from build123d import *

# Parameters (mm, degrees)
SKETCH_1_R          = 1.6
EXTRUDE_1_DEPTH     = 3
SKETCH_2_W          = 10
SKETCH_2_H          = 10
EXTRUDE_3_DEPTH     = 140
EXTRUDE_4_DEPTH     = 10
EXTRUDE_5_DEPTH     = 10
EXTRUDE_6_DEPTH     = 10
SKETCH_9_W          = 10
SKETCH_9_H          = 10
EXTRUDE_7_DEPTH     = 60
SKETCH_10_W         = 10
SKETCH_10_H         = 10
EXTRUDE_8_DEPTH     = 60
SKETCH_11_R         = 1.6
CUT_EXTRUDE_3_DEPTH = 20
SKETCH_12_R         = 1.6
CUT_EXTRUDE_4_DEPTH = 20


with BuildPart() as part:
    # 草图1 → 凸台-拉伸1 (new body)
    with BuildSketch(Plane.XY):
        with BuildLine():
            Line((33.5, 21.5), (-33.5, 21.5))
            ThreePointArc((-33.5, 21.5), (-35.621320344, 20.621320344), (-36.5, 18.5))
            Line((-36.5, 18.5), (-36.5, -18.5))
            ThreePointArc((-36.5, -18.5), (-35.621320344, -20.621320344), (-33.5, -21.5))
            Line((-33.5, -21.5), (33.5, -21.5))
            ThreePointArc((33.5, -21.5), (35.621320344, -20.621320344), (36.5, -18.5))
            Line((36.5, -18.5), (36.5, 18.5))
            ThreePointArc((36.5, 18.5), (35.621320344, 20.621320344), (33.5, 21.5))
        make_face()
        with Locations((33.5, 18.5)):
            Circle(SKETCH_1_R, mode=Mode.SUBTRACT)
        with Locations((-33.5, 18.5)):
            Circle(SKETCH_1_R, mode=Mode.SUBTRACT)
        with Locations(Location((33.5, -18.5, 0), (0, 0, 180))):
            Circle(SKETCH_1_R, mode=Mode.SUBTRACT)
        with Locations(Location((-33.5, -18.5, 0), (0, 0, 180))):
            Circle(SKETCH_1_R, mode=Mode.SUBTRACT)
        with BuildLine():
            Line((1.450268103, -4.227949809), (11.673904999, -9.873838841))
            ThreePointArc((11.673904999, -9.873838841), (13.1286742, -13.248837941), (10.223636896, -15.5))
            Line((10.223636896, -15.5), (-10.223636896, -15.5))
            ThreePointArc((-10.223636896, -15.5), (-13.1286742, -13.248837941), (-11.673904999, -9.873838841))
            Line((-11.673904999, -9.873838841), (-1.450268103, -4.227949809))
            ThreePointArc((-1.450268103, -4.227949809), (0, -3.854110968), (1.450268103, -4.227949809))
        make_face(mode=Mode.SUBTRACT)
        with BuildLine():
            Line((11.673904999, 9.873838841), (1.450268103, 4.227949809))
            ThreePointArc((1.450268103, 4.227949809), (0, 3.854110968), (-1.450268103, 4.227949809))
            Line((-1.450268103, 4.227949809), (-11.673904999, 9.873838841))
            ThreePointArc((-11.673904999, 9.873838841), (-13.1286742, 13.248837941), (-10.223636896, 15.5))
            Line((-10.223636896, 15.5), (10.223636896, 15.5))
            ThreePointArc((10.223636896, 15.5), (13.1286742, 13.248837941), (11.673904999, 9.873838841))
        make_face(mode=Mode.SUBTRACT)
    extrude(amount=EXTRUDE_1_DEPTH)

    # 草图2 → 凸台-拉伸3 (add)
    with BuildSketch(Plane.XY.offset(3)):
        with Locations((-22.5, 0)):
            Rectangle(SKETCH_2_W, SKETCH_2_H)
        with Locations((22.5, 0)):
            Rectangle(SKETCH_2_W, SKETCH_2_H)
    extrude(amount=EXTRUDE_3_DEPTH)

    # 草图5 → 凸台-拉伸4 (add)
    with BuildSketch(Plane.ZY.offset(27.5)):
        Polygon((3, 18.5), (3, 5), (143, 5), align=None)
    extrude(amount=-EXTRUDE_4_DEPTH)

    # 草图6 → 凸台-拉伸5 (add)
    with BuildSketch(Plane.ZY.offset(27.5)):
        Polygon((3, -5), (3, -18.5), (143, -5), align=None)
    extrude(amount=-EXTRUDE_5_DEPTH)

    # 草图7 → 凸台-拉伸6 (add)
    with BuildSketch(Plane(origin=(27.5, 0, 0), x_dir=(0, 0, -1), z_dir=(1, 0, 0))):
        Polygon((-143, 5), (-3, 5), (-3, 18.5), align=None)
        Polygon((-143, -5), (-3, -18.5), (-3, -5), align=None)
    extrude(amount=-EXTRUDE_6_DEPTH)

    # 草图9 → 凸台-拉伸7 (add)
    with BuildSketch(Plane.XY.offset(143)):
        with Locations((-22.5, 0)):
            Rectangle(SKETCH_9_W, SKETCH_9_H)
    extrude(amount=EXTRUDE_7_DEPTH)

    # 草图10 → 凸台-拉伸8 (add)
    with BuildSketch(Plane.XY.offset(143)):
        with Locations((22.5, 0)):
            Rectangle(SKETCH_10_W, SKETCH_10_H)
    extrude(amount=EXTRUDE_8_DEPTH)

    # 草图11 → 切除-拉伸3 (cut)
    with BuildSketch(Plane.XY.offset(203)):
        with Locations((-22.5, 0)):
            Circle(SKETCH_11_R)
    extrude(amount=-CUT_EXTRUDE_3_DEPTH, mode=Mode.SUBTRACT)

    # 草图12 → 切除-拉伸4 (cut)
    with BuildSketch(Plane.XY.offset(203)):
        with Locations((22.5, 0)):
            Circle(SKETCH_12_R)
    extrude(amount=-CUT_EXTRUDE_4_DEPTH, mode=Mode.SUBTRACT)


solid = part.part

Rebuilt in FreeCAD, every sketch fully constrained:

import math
import FreeCAD as App
import Part
import Sketcher

V = App.Vector
Q = App.Units.Quantity

doc = App.newDocument("Part")
body = doc.addObject("PartDesign::Body", "Body")

sketch1 = body.newObject("Sketcher::SketchObject", "Sketch")
sketch1.AttachmentSupport = (doc.getObject("XY_Plane"), [""])
sketch1.MapMode = "FlatFace"
sketch1.addGeometry([
    Part.LineSegment(V(33.5, 21.5, 0), V(-33.5, 21.5, 0)),
    Part.ArcOfCircle(Part.Circle(V(-33.5, 18.5, 0), V(0, 0, 1), 3), math.radians(90), math.radians(180)),
    Part.LineSegment(V(-36.5, 18.5, 0), V(-36.5, -18.5, 0)),
    Part.ArcOfCircle(Part.Circle(V(-33.5, -18.5, 0), V(0, 0, 1), 3), math.radians(180), math.radians(270)),
    Part.LineSegment(V(-33.5, -21.5, 0), V(33.5, -21.5, 0)),
    Part.ArcOfCircle(Part.Circle(V(33.5, -18.5, 0), V(0, 0, 1), 3), math.radians(-90), math.radians(0)),
    Part.LineSegment(V(36.5, -18.5, 0), V(36.5, 18.5, 0)),
    Part.ArcOfCircle(Part.Circle(V(33.5, 18.5, 0), V(0, 0, 1), 3), math.radians(0), math.radians(90)),
    Part.Circle(V(-33.5, -18.5, 0), V(0, 0, 1), 1.6),
    Part.Circle(V(33.5, -18.5, 0), V(0, 0, 1), 1.6),
    Part.ArcOfCircle(Part.Circle(V(0, -6.9, 0), V(0, 0, 1), 3), math.radians(61), math.radians(119)),
    Part.LineSegment(V(1.5, -4.2, 0), V(11.7, -9.9, 0)),
    Part.ArcOfCircle(Part.Circle(V(10.2, -12.5, 0), V(0, 0, 1), 3), math.radians(-90), math.radians(61)),
    Part.LineSegment(V(10.2, -15.5, 0), V(-10.2, -15.5, 0)),
    Part.ArcOfCircle(Part.Circle(V(-10.2, -12.5, 0), V(0, 0, 1), 3), math.radians(119), math.radians(270)),
    Part.LineSegment(V(-11.7, -9.9, 0), V(-1.5, -4.2, 0)),
    Part.Circle(V(-33.5, 18.5, 0), V(0, 0, 1), 1.6),
    Part.ArcOfCircle(Part.Circle(V(10.2, 12.5, 0), V(0, 0, 1), 3), math.radians(-61), math.radians(90)),
    Part.LineSegment(V(11.7, 9.9, 0), V(1.5, 4.2, 0)),
    Part.ArcOfCircle(Part.Circle(V(0, 6.9, 0), V(0, 0, 1), 3), math.radians(-119), math.radians(-61)),
    Part.LineSegment(V(-1.5, 4.2, 0), V(-11.7, 9.9, 0)),
    Part.ArcOfCircle(Part.Circle(V(-10.2, 12.5, 0), V(0, 0, 1), 3), math.radians(90), math.radians(241)),
    Part.LineSegment(V(-10.2, 15.5, 0), V(10.2, 15.5, 0)),
    Part.Circle(V(33.5, 18.5, 0), V(0, 0, 1), 1.6),
], False)
sketch1.addConstraint([
    Sketcher.Constraint("Tangent", 0, 2, 1, 1),
    Sketcher.Constraint("Tangent", 1, 2, 2, 1),
    Sketcher.Constraint("Tangent", 2, 2, 3, 1),
    Sketcher.Constraint("Tangent", 3, 2, 4, 1),
    Sketcher.Constraint("Tangent", 4, 2, 5, 1),
    Sketcher.Constraint("Tangent", 5, 2, 6, 1),
    Sketcher.Constraint("Tangent", 6, 2, 7, 1),
    Sketcher.Constraint("Tangent", 7, 2, 0, 1),
    Sketcher.Constraint("Tangent", 10, 1, 11, 1),
    Sketcher.Constraint("Tangent", 11, 2, 12, 2),
    Sketcher.Constraint("Tangent", 12, 1, 13, 1),
    Sketcher.Constraint("Tangent", 13, 2, 14, 2),
    Sketcher.Constraint("Tangent", 14, 1, 15, 1),
    Sketcher.Constraint("Tangent", 15, 2, 10, 2),
    Sketcher.Constraint("Tangent", 17, 1, 18, 1),
    Sketcher.Constraint("Tangent", 18, 2, 19, 2),
    Sketcher.Constraint("Tangent", 19, 1, 20, 1),
    Sketcher.Constraint("Tangent", 20, 2, 21, 2),
    Sketcher.Constraint("Tangent", 21, 1, 22, 1),
    Sketcher.Constraint("Tangent", 22, 2, 17, 2),
    Sketcher.Constraint("Horizontal", 0),
    Sketcher.Constraint("Vertical", 2),
    Sketcher.Constraint("Horizontal", 4),
    Sketcher.Constraint("Vertical", 6),
    Sketcher.Constraint("Horizontal", 13),
    Sketcher.Constraint("Horizontal", 22),
    Sketcher.Constraint("Coincident", 8, 3, 3, 3),
    Sketcher.Constraint("Coincident", 9, 3, 5, 3),
    Sketcher.Constraint("Coincident", 16, 3, 1, 3),
    Sketcher.Constraint("Coincident", 23, 3, 7, 3),
    Sketcher.Constraint("Equal", 1, 3),
    Sketcher.Constraint("Equal", 3, 5),
    Sketcher.Constraint("Equal", 5, 7),
    Sketcher.Constraint("Equal", 8, 9),
    Sketcher.Constraint("Equal", 7, 10),
    Sketcher.Constraint("Equal", 10, 12),
    Sketcher.Constraint("Equal", 12, 14),
    Sketcher.Constraint("Equal", 9, 16),
    Sketcher.Constraint("Equal", 14, 17),
    Sketcher.Constraint("Equal", 17, 19),
    Sketcher.Constraint("Equal", 19, 21),
    Sketcher.Constraint("Equal", 16, 23),
    Sketcher.Constraint("Symmetric", 1, 3, 5, 3, -1, 1),
    Sketcher.Constraint("Symmetric", 14, 3, 17, 3, -1, 1),
    Sketcher.Constraint("Symmetric", 10, 3, 19, 3, -1, 1),
    Sketcher.Constraint("Symmetric", 11, 2, 14, 1, -2),
    Sketcher.Constraint("Parallel", 11, 20),
    Sketcher.Constraint("Radius", 1, Q("3 mm")),
    Sketcher.Constraint("Diameter", 8, Q("3.2 mm")),
    Sketcher.Constraint("DistanceX", 0, 2, 0, 1, Q("67 mm")),
    Sketcher.Constraint("DistanceY", 2, 2, 2, 1, Q("37 mm")),
    Sketcher.Constraint("DistanceY", 9, 3, 12, 3, Q("6 mm")),
    Sketcher.Constraint("DistanceY", 10, 1, 18, 2, Q("8.4559 mm")),
    Sketcher.Constraint("Distance", 11, Q("11.67899 mm")),
])
pad1 = body.newObject("PartDesign::Pad", "Pad")
pad1.Profile = sketch1
pad1.Length = 3

sketch2 = body.newObject("Sketcher::SketchObject", "Sketch001")
sketch2.AttachmentSupport = (doc.getObject("XY_Plane"), [""])
sketch2.MapMode = "FlatFace"
sketch2.AttachmentOffset = App.Placement(V(0, 0, 3), App.Rotation())
sketch2.addGeometry([
    Part.LineSegment(V(-28, 5, 0), V(-28, -5, 0)),
    Part.LineSegment(V(-28, -5, 0), V(-18, -5, 0)),
    Part.LineSegment(V(-18, -5, 0), V(-18, 5, 0)),
    Part.LineSegment(V(-18, 5, 0), V(-28, 5, 0)),
    Part.LineSegment(V(18, 5, 0), V(18, -5, 0)),
    Part.LineSegment(V(18, -5, 0), V(28, -5, 0)),
    Part.LineSegment(V(28, -5, 0), V(28, 5, 0)),
    Part.LineSegment(V(28, 5, 0), V(18, 5, 0)),
], False)
sketch2.addConstraint([
    Sketcher.Constraint("Coincident", 0, 2, 1, 1),
    Sketcher.Constraint("Coincident", 1, 2, 2, 1),
    Sketcher.Constraint("Coincident", 2, 2, 3, 1),
    Sketcher.Constraint("Coincident", 3, 2, 0, 1),
    Sketcher.Constraint("Coincident", 4, 2, 5, 1),
    Sketcher.Constraint("Coincident", 5, 2, 6, 1),
    Sketcher.Constraint("Coincident", 6, 2, 7, 1),
    Sketcher.Constraint("Coincident", 7, 2, 4, 1),
    Sketcher.Constraint("Vertical", 0),
    Sketcher.Constraint("Horizontal", 1),
    Sketcher.Constraint("Vertical", 2),
    Sketcher.Constraint("Horizontal", 3),
    Sketcher.Constraint("Vertical", 4),
    Sketcher.Constraint("Horizontal", 5),
    Sketcher.Constraint("Vertical", 6),
    Sketcher.Constraint("Horizontal", 7),
    Sketcher.Constraint("Symmetric", 2, 2, 4, 2, -1, 1),
    Sketcher.Constraint("Symmetric", 0, 2, 6, 2, -1, 1),
    Sketcher.Constraint("Horizontal", 1, 2, 4, 2),
    Sketcher.Constraint("Equal", 7, 0),
    Sketcher.Constraint("DistanceX", 1, 1, 1, 2, Q("10 mm")),
    Sketcher.Constraint("DistanceX", 1, 2, 4, 2, Q("35 mm")),
])
pad2 = body.newObject("PartDesign::Pad", "Pad001")
pad2.Profile = sketch2
pad2.Length = 140

sketch3 = body.newObject("Sketcher::SketchObject", "Sketch002")
sketch3.AttachmentSupport = (doc.getObject("YZ_Plane"), [""])
sketch3.MapMode = "FlatFace"
sketch3.AttachmentOffset = App.Placement(V(0, 0, -27.5), App.Rotation())
sketch3.addGeometry([
    Part.LineSegment(V(18, 3, 0), V(5, 3, 0)),
    Part.LineSegment(V(5, 3, 0), V(5, 143, 0)),
    Part.LineSegment(V(5, 143, 0), V(18, 3, 0)),
], False)
sketch3.addConstraint([
    Sketcher.Constraint("Coincident", 0, 2, 1, 1),
    Sketcher.Constraint("Coincident", 1, 2, 2, 1),
    Sketcher.Constraint("Coincident", 2, 2, 0, 1),
    Sketcher.Constraint("Horizontal", 0),
    Sketcher.Constraint("Vertical", 1),
    Sketcher.Constraint("DistanceY", 1, 1, 1, 2, Q("140 mm")),
    Sketcher.Constraint("DistanceX", 0, 2, 0, 1, Q("13.5 mm")),
    Sketcher.Constraint("DistanceX", -1, 1, 0, 2, Q("5 mm")),
    Sketcher.Constraint("DistanceY", -1, 1, 0, 2, Q("3 mm")),
])
pad3 = body.newObject("PartDesign::Pad", "Pad002")
pad3.Profile = sketch3
pad3.Length = 10

sketch4 = body.newObject("Sketcher::SketchObject", "Sketch003")
sketch4.AttachmentSupport = (doc.getObject("YZ_Plane"), [""])
sketch4.MapMode = "FlatFace"
sketch4.AttachmentOffset = App.Placement(V(0, 0, -27.5), App.Rotation())
sketch4.addGeometry([
    Part.LineSegment(V(-5, 3, 0), V(-18, 3, 0)),
    Part.LineSegment(V(-18, 3, 0), V(-5, 143, 0)),
    Part.LineSegment(V(-5, 143, 0), V(-5, 3, 0)),
], False)
sketch4.addConstraint([
    Sketcher.Constraint("Coincident", 0, 2, 1, 1),
    Sketcher.Constraint("Coincident", 1, 2, 2, 1),
    Sketcher.Constraint("Coincident", 2, 2, 0, 1),
    Sketcher.Constraint("Horizontal", 0),
    Sketcher.Constraint("Vertical", 2),
    Sketcher.Constraint("DistanceY", 2, 2, 2, 1, Q("140 mm")),
    Sketcher.Constraint("DistanceX", 0, 2, 0, 1, Q("13.5 mm")),
    Sketcher.Constraint("DistanceY", -1, 1, 0, 2, Q("3 mm")),
    Sketcher.Constraint("DistanceX", 1, 2, -1, 1, Q("5 mm")),
])
pad4 = body.newObject("PartDesign::Pad", "Pad003")
pad4.Profile = sketch4
pad4.Length = 10

sketch5 = body.newObject("Sketcher::SketchObject", "Sketch004")
sketch5.AttachmentSupport = (doc.getObject("YZ_Plane"), [""])
sketch5.MapMode = "FlatFace"
sketch5.AttachmentOffset = App.Placement(V(0, 0, 27.5), App.Rotation())
sketch5.addGeometry([
    Part.LineSegment(V(5, 143, 0), V(5, 3, 0)),
    Part.LineSegment(V(5, 3, 0), V(18, 3, 0)),
    Part.LineSegment(V(18, 3, 0), V(5, 143, 0)),
    Part.LineSegment(V(-5, 143, 0), V(-18, 3, 0)),
    Part.LineSegment(V(-18, 3, 0), V(-5, 3, 0)),
    Part.LineSegment(V(-5, 3, 0), V(-5, 143, 0)),
], False)
sketch5.addConstraint([
    Sketcher.Constraint("Coincident", 0, 2, 1, 1),
    Sketcher.Constraint("Coincident", 1, 2, 2, 1),
    Sketcher.Constraint("Coincident", 2, 2, 0, 1),
    Sketcher.Constraint("Coincident", 3, 2, 4, 1),
    Sketcher.Constraint("Coincident", 4, 2, 5, 1),
    Sketcher.Constraint("Coincident", 5, 2, 3, 1),
    Sketcher.Constraint("Vertical", 0),
    Sketcher.Constraint("Horizontal", 1),
    Sketcher.Constraint("Horizontal", 4),
    Sketcher.Constraint("Vertical", 5),
    Sketcher.Constraint("Symmetric", 1, 2, 3, 2, -2),
    Sketcher.Constraint("Symmetric", 2, 2, 5, 2, -2),
    Sketcher.Constraint("DistanceY", 0, 2, 0, 1, Q("140 mm")),
    Sketcher.Constraint("DistanceX", 1, 1, 1, 2, Q("13.5 mm")),
    Sketcher.Constraint("DistanceX", -1, 1, 0, 2, Q("5 mm")),
    Sketcher.Constraint("DistanceY", -1, 1, 0, 2, Q("3 mm")),
])
pad5 = body.newObject("PartDesign::Pad", "Pad004")
pad5.Profile = sketch5
pad5.Length = 10
pad5.Reversed = True

sketch6 = body.newObject("Sketcher::SketchObject", "Sketch005")
sketch6.AttachmentSupport = (doc.getObject("XY_Plane"), [""])
sketch6.MapMode = "FlatFace"
sketch6.AttachmentOffset = App.Placement(V(0, 0, 143), App.Rotation())
sketch6.addGeometry([
    Part.LineSegment(V(-28, 5, 0), V(-28, -5, 0)),
    Part.LineSegment(V(-28, -5, 0), V(-18, -5, 0)),
    Part.LineSegment(V(-18, -5, 0), V(-18, 5, 0)),
    Part.LineSegment(V(-18, 5, 0), V(-28, 5, 0)),
], False)
sketch6.addConstraint([
    Sketcher.Constraint("Coincident", 0, 2, 1, 1),
    Sketcher.Constraint("Coincident", 1, 2, 2, 1),
    Sketcher.Constraint("Coincident", 2, 2, 3, 1),
    Sketcher.Constraint("Coincident", 3, 2, 0, 1),
    Sketcher.Constraint("Vertical", 0),
    Sketcher.Constraint("Horizontal", 1),
    Sketcher.Constraint("Vertical", 2),
    Sketcher.Constraint("Horizontal", 3),
    Sketcher.Constraint("Equal", 3, 0),
    Sketcher.Constraint("DistanceX", 1, 1, 1, 2, Q("10 mm")),
    Sketcher.Constraint("DistanceY", 0, 2, -1, 1, Q("5 mm")),
    Sketcher.Constraint("DistanceX", 0, 2, -1, 1, Q("27.5 mm")),
])
pad6 = body.newObject("PartDesign::Pad", "Pad005")
pad6.Profile = sketch6
pad6.Length = 60

sketch7 = body.newObject("Sketcher::SketchObject", "Sketch006")
sketch7.AttachmentSupport = (doc.getObject("XY_Plane"), [""])
sketch7.MapMode = "FlatFace"
sketch7.AttachmentOffset = App.Placement(V(0, 0, 143), App.Rotation())
sketch7.addGeometry([
    Part.LineSegment(V(18, 5, 0), V(18, -5, 0)),
    Part.LineSegment(V(18, -5, 0), V(28, -5, 0)),
    Part.LineSegment(V(28, -5, 0), V(28, 5, 0)),
    Part.LineSegment(V(28, 5, 0), V(18, 5, 0)),
], False)
sketch7.addConstraint([
    Sketcher.Constraint("Coincident", 0, 2, 1, 1),
    Sketcher.Constraint("Coincident", 1, 2, 2, 1),
    Sketcher.Constraint("Coincident", 2, 2, 3, 1),
    Sketcher.Constraint("Coincident", 3, 2, 0, 1),
    Sketcher.Constraint("Vertical", 0),
    Sketcher.Constraint("Horizontal", 1),
    Sketcher.Constraint("Vertical", 2),
    Sketcher.Constraint("Horizontal", 3),
    Sketcher.Constraint("Equal", 3, 0),
    Sketcher.Constraint("DistanceX", 1, 1, 1, 2, Q("10 mm")),
    Sketcher.Constraint("DistanceY", 0, 2, -1, 1, Q("5 mm")),
    Sketcher.Constraint("DistanceX", -1, 1, 0, 2, Q("17.5 mm")),
])
pad7 = body.newObject("PartDesign::Pad", "Pad006")
pad7.Profile = sketch7
pad7.Length = 60

sketch8 = body.newObject("Sketcher::SketchObject", "Sketch007")
sketch8.AttachmentSupport = (doc.getObject("XY_Plane"), [""])
sketch8.MapMode = "FlatFace"
sketch8.AttachmentOffset = App.Placement(V(0, 0, 203), App.Rotation())
sketch8.addGeometry(Part.Circle(V(-22.5, 0, 0), V(0, 0, 1), 1.6), False)
sketch8.addConstraint([
    Sketcher.Constraint("PointOnObject", 0, 3, -1),
    Sketcher.Constraint("Diameter", 0, Q("3.2 mm")),
    Sketcher.Constraint("DistanceX", 0, 3, -1, 1, Q("22.5 mm")),
])
pocket1 = body.newObject("PartDesign::Pocket", "Pocket")
pocket1.Profile = sketch8
pocket1.Length = 20

sketch9 = body.newObject("Sketcher::SketchObject", "Sketch008")
sketch9.AttachmentSupport = (doc.getObject("XY_Plane"), [""])
sketch9.MapMode = "FlatFace"
sketch9.AttachmentOffset = App.Placement(V(0, 0, 203), App.Rotation())
sketch9.addGeometry(Part.Circle(V(22.5, 0, 0), V(0, 0, 1), 1.6), False)
sketch9.addConstraint([
    Sketcher.Constraint("PointOnObject", 0, 3, -1),
    Sketcher.Constraint("Diameter", 0, Q("3.2 mm")),
    Sketcher.Constraint("DistanceX", -1, 1, 0, 3, Q("22.5 mm")),
])
pocket2 = body.newObject("PartDesign::Pocket", "Pocket001")
pocket2.Profile = sketch9
pocket2.Length = 20

doc.recompute()
